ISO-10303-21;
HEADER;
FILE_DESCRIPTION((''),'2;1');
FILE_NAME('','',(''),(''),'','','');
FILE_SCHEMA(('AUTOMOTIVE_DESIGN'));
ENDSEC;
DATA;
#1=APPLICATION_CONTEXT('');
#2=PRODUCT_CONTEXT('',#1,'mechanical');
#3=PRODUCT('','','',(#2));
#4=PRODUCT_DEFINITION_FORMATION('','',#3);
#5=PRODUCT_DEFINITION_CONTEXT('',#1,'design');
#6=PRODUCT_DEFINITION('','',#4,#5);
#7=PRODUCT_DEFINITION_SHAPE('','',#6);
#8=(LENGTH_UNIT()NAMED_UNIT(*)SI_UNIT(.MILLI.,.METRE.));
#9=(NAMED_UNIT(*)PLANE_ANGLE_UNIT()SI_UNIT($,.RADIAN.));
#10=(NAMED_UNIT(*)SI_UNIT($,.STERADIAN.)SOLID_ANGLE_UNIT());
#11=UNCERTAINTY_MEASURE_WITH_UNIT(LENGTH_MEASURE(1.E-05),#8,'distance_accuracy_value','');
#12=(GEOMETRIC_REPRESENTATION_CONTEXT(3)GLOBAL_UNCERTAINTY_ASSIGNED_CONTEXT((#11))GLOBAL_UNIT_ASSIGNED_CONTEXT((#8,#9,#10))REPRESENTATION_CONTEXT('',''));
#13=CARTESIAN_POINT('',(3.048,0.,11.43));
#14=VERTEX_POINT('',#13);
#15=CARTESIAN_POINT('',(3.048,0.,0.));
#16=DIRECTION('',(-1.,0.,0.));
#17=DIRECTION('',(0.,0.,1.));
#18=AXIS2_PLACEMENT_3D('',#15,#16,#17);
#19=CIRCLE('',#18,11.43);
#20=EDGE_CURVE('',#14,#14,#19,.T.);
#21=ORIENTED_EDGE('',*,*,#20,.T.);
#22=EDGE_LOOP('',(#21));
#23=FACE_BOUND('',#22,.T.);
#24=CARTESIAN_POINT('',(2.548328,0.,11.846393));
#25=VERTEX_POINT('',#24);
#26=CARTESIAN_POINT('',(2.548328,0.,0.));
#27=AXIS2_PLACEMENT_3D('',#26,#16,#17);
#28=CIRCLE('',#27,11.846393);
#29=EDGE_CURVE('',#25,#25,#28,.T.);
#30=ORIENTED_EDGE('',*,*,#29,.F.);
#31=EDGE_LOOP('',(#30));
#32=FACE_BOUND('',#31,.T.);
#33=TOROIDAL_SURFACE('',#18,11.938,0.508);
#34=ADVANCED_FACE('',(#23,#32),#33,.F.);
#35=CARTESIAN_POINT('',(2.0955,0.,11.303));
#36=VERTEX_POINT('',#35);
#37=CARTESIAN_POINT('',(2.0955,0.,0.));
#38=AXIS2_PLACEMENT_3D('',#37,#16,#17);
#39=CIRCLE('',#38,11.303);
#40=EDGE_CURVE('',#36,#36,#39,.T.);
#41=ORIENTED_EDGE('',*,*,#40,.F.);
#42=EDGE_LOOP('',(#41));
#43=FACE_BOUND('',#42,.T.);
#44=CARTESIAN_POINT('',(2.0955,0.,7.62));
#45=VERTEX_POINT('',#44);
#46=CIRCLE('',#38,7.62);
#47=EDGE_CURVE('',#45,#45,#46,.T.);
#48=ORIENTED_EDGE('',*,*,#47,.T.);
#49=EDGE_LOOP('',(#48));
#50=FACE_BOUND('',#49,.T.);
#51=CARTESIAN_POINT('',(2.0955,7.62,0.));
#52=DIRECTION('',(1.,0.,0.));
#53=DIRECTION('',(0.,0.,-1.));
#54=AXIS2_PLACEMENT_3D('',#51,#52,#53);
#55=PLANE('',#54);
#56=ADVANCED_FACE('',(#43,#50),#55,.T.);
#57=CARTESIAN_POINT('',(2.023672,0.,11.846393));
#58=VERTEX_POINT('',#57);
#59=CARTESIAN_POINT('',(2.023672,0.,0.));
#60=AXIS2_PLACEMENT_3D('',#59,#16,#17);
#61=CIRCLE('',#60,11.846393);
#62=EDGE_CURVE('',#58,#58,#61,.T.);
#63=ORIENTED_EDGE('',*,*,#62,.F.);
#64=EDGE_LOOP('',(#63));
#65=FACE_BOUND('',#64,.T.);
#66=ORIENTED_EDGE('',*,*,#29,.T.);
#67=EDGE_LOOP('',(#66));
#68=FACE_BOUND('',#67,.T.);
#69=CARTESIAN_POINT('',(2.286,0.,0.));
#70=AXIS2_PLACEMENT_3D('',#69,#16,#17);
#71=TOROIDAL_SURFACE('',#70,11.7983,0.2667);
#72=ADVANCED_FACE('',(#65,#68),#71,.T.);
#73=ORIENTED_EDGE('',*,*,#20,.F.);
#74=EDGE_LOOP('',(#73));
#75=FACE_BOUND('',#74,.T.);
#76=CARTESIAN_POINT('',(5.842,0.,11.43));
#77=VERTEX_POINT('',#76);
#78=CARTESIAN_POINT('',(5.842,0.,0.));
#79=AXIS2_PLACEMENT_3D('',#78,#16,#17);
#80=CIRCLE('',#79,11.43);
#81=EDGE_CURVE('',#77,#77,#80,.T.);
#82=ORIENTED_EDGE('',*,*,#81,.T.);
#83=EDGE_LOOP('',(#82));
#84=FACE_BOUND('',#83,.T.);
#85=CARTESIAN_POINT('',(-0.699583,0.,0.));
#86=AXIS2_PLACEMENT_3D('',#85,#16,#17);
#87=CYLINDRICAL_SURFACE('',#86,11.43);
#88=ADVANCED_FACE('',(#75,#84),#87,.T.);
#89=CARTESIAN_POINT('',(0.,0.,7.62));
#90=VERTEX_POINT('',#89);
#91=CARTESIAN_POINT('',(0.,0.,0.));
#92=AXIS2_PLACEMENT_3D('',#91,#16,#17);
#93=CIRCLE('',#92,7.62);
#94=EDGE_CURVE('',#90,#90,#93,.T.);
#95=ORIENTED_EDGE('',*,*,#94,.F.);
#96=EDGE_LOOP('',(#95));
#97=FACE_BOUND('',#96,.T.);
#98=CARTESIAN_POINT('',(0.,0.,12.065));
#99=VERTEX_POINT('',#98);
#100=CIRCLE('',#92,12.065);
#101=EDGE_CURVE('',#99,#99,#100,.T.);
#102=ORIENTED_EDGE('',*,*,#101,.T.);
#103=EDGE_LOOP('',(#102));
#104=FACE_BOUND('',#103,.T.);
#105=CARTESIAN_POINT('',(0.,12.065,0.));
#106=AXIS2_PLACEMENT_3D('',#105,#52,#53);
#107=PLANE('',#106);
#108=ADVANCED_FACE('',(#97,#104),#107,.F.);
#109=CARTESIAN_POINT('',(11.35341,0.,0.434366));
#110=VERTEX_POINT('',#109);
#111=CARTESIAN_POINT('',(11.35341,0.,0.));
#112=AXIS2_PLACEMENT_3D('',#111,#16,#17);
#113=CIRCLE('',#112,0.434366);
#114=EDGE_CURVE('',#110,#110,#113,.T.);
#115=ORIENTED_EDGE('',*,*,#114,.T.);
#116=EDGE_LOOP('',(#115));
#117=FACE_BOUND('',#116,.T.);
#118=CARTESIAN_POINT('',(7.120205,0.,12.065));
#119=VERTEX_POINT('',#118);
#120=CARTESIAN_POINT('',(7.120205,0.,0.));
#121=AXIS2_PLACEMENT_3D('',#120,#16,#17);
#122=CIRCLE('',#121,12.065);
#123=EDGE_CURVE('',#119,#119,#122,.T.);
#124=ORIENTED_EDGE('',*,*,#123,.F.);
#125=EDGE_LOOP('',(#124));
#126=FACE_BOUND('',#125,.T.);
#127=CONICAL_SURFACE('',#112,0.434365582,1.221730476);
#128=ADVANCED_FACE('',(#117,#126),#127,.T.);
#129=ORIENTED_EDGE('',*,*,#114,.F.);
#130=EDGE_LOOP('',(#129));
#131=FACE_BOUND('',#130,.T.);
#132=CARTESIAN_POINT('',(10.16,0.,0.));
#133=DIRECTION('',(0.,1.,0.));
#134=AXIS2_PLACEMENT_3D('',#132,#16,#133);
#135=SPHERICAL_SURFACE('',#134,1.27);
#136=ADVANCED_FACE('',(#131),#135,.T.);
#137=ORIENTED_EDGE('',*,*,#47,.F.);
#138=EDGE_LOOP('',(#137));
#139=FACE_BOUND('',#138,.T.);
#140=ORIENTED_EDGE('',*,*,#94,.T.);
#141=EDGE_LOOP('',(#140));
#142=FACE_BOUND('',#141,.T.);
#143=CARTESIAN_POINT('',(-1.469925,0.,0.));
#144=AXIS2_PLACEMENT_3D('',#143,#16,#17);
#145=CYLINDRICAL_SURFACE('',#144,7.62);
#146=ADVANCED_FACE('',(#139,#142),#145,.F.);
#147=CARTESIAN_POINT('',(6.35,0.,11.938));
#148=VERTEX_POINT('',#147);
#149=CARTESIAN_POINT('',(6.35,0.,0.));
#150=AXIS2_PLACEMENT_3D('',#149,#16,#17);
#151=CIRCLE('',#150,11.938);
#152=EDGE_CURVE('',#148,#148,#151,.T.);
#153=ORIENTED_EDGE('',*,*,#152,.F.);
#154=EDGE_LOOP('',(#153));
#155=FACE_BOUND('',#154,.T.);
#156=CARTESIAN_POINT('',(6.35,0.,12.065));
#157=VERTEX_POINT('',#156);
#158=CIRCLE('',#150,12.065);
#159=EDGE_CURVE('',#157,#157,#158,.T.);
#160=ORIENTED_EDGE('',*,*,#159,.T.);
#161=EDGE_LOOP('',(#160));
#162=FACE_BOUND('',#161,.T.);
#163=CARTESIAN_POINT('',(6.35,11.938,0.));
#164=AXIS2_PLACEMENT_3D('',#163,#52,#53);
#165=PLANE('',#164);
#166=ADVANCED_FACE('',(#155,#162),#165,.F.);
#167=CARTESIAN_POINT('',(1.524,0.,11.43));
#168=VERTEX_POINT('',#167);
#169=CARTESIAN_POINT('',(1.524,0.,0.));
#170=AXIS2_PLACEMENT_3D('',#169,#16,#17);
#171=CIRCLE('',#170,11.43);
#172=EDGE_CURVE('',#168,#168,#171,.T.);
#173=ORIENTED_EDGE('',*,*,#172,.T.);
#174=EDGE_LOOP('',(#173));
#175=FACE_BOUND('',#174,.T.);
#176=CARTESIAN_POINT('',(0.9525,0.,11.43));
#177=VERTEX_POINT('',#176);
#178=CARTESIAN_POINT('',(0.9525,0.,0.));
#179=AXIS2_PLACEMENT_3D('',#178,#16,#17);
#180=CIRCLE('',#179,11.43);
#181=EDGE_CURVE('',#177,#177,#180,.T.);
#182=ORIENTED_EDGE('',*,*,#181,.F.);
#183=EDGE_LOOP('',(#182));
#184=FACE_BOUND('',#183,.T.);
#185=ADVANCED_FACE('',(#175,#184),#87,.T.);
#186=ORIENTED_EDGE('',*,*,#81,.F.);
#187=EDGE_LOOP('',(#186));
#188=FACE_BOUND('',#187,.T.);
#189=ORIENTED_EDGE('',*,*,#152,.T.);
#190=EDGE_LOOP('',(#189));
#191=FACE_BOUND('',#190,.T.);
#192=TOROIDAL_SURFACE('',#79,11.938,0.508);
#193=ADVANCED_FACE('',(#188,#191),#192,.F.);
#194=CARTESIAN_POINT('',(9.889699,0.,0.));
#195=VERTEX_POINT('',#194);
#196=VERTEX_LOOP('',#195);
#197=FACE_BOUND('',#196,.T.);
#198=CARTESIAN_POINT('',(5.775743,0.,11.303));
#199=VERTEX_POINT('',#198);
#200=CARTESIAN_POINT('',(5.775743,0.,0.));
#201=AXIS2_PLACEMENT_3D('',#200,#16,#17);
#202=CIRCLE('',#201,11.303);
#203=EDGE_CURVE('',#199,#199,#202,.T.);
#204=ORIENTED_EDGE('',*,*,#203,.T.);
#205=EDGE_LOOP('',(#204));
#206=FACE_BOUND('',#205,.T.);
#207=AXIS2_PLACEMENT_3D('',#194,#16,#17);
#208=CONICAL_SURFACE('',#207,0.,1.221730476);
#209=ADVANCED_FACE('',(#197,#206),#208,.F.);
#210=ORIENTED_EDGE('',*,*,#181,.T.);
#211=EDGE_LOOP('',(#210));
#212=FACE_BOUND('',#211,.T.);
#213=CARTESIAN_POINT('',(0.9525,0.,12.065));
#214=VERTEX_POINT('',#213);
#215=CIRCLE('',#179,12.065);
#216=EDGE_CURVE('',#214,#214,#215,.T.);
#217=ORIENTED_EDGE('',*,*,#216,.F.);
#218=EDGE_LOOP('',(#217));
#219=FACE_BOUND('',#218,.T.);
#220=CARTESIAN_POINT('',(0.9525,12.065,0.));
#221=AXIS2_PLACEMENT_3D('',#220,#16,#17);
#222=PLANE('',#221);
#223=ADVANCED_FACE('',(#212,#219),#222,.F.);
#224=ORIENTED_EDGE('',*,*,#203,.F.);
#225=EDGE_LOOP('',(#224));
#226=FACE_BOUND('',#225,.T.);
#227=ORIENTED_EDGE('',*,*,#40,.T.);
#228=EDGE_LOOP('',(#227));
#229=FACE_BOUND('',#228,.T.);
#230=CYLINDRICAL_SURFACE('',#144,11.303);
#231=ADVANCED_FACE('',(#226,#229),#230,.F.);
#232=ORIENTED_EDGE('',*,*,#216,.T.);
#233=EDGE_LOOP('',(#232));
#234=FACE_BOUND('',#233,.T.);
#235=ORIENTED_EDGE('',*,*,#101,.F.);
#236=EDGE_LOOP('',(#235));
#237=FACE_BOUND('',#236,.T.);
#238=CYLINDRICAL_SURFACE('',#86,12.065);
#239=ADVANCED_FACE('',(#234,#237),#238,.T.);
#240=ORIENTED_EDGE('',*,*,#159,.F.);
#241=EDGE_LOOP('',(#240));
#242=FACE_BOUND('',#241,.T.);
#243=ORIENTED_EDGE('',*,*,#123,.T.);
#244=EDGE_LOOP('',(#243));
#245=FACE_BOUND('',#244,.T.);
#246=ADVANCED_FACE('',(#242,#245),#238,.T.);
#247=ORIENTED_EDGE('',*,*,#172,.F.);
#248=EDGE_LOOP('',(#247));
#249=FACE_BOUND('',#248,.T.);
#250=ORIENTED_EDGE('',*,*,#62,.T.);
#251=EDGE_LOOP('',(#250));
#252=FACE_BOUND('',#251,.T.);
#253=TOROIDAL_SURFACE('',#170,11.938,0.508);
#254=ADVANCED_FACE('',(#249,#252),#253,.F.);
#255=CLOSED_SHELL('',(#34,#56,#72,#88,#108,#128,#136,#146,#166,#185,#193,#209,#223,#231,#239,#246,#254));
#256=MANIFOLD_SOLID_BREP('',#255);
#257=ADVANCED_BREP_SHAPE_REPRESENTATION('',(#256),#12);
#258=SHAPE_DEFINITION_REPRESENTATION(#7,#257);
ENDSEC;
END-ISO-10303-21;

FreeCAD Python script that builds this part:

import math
import FreeCAD as App
import Part
import Sketcher
from FreeCAD import Vector
Q = App.Units.Quantity

doc = App.newDocument("Part")
params = doc.addObject("Spreadsheet::Sheet", "Params")
for row, (alias, value) in enumerate([
    ("sketch1_radius", "0.05 in"),
    ("sketch1_radius2", "0.02 in"),
    ("sketch1_width", "0.45 in"),
    ("sketch1_width2", "0.11 in"),
    ("sketch1_height", "0.475 in"),
    ("revolution_angle", "360 deg"),
    ("sketch2_height", "0.3 in"),
    ("sketch2_height2", "0.145 in"),
    ("groove_angle", "360 deg"),
], start=1):
    params.set(f"A{row}", alias)
    params.set(f"B{row}", "=" + value)
    params.setAlias(f"B{row}", alias)

body = doc.addObject("PartDesign::Body", "Body")

# Sketch on XY plane
sketch1 = body.newObject("Sketcher::SketchObject", "Sketch")
sketch1.AttachmentSupport = (doc.getObject("XY_Plane"), [""])
sketch1.MapMode = "FlatFace"
sketch1.addGeometry([
    Part.LineSegment(Vector(0.95, 12.06, 0), Vector(0, 12.06, 0)),  # 0
    Part.LineSegment(Vector(0, 12.06, 0), Vector(0, 0, 0)),  # 1
    Part.LineSegment(Vector(0, 0, 0), Vector(11.43, 0, 0)),  # 2
    Part.ArcOfCircle(Part.Circle(Vector(10.16, 0, 0), Vector(0, 0, 1), 1.27), math.radians(0), math.radians(20)),  # 3
    Part.LineSegment(Vector(11.35, 0.43, 0), Vector(7.12, 12.06, 0)),  # 4
    Part.LineSegment(Vector(7.12, 12.06, 0), Vector(6.35, 12.06, 0)),  # 5
    Part.LineSegment(Vector(6.35, 12.06, 0), Vector(6.35, 11.94, 0)),  # 6
    Part.ArcOfCircle(Part.Circle(Vector(5.84, 11.94, 0), Vector(0, 0, 1), 0.51), math.radians(-90), math.radians(0)),  # 7
    Part.LineSegment(Vector(5.84, 11.43, 0), Vector(3.05, 11.43, 0)),  # 8
    Part.ArcOfCircle(Part.Circle(Vector(3.05, 11.94, 0), Vector(0, 0, 1), 0.51), math.radians(-170), math.radians(-90)),  # 9
    Part.ArcOfCircle(Part.Circle(Vector(2.29, 11.8, 0), Vector(0, 0, 1), 0.27), math.radians(10), math.radians(170)),  # 10
    Part.ArcOfCircle(Part.Circle(Vector(1.52, 11.94, 0), Vector(0, 0, 1), 0.51), math.radians(-90), math.radians(-10)),  # 11
    Part.LineSegment(Vector(1.52, 11.43, 0), Vector(0.95, 11.43, 0)),  # 12
    Part.LineSegment(Vector(0.95, 11.43, 0), Vector(0.95, 12.06, 0)),  # 13
], False)
sketch1.addConstraint([
    Sketcher.Constraint("Coincident", 0, 2, 1, 1),
    Sketcher.Constraint("Coincident", 1, 2, 2, 1),
    Sketcher.Constraint("Coincident", 2, 2, 3, 1),
    Sketcher.Constraint("Tangent", 3, 2, 4, 1),
    Sketcher.Constraint("Coincident", 4, 2, 5, 1),
    Sketcher.Constraint("Coincident", 5, 2, 6, 1),
    Sketcher.Constraint("Tangent", 6, 2, 7, 2),
    Sketcher.Constraint("Tangent", 7, 1, 8, 1),
    Sketcher.Constraint("Tangent", 8, 2, 9, 2),
    Sketcher.Constraint("Tangent", 9, 1, 10, 1),
    Sketcher.Constraint("Tangent", 10, 2, 11, 2),
    Sketcher.Constraint("Tangent", 11, 1, 12, 1),
    Sketcher.Constraint("Coincident", 12, 2, 13, 1),
    Sketcher.Constraint("Coincident", 13, 2, 0, 1),
    Sketcher.Constraint("Horizontal", 0),
    Sketcher.Constraint("Vertical", 1),
    Sketcher.Constraint("Horizontal", 2),
    Sketcher.Constraint("Horizontal", 5),
    Sketcher.Constraint("Vertical", 6),
    Sketcher.Constraint("Horizontal", 8),
    Sketcher.Constraint("Horizontal", 12),
    Sketcher.Constraint("Vertical", 13),
    Sketcher.Constraint("Coincident", 1, 2, -1, 1),
    Sketcher.Constraint("Equal", 7, 9),
    Sketcher.Constraint("Equal", 9, 11),
    Sketcher.Constraint("PointOnObject", 3, 3, -1),
    Sketcher.Constraint("Horizontal", 9, 3, 11, 3),
    Sketcher.Constraint("Horizontal", 0, 2, 4, 2),
    Sketcher.Constraint("Radius", 3, Q("0.05 in")),
    Sketcher.Constraint("Radius", 7, Q("0.02 in")),
    Sketcher.Constraint("Angle", 4, Q("110 deg")),
    Sketcher.Constraint("DistanceX", 2, 1, 2, 2, Q("0.45 in")),
    Sketcher.Constraint("DistanceX", 8, 2, 8, 1, Q("0.11 in")),
    Sketcher.Constraint("Radius", 10, Q("0.0105 in")),
    Sketcher.Constraint("DistanceY", 1, 2, 1, 1, Q("0.475 in")),
    Sketcher.Constraint("DistanceY", 6, 2, 6, 1, Q("0.005 in")),
    Sketcher.Constraint("DistanceX", -1, 1, 7, 3, Q("0.23 in")),
    Sketcher.Constraint("DistanceX", -1, 1, 10, 3, Q("0.09 in")),
    Sketcher.Constraint("DistanceX", 0, 2, 0, 1, Q("0.0375 in")),
])
sketch1.setExpression("Constraints[28]", "Params.sketch1_radius")
sketch1.setExpression("Constraints[29]", "Params.sketch1_radius2")
sketch1.setExpression("Constraints[31]", "Params.sketch1_width")
sketch1.setExpression("Constraints[32]", "Params.sketch1_width2")
sketch1.setExpression("Constraints[34]", "Params.sketch1_height")
revolution = body.newObject("PartDesign::Revolution", "Revolution")
revolution.Profile = sketch1
revolution.ReferenceAxis = (sketch1, ["H_Axis"])
revolution.setExpression("Angle", "Params.revolution_angle")

# Sketch on XY plane
sketch2 = body.newObject("Sketcher::SketchObject", "Sketch001")
sketch2.AttachmentSupport = (doc.getObject("XY_Plane"), [""])
sketch2.MapMode = "FlatFace"
sketch2.addGeometry([
    Part.LineSegment(Vector(0, 7.6, 0), Vector(0, 0, 0)),  # 0
    Part.LineSegment(Vector(0, 0, 0), Vector(9.9, 0, 0)),  # 1
    Part.LineSegment(Vector(9.9, 0, 0), Vector(5.8, 11.3, 0)),  # 2
    Part.LineSegment(Vector(5.8, 11.3, 0), Vector(2.1, 11.3, 0)),  # 3
    Part.LineSegment(Vector(2.1, 11.3, 0), Vector(2.1, 7.6, 0)),  # 4
    Part.LineSegment(Vector(2.1, 7.6, 0), Vector(0, 7.6, 0)),  # 5
], False)
sketch2.addConstraint([
    Sketcher.Constraint("Coincident", 0, 2, 1, 1),
    Sketcher.Constraint("Coincident", 1, 2, 2, 1),
    Sketcher.Constraint("Coincident", 2, 2, 3, 1),
    Sketcher.Constraint("Coincident", 3, 2, 4, 1),
    Sketcher.Constraint("Coincident", 4, 2, 5, 1),
    Sketcher.Constraint("Coincident", 5, 2, 0, 1),
    Sketcher.Constraint("Vertical", 0),
    Sketcher.Constraint("Horizontal", 1),
    Sketcher.Constraint("Horizontal", 3),
    Sketcher.Constraint("Vertical", 4),
    Sketcher.Constraint("Horizontal", 5),
    Sketcher.Constraint("Coincident", 0, 2, -1, 1),
    Sketcher.Constraint("DistanceY", 0, 2, 0, 1, Q("0.3 in")),
    Sketcher.Constraint("Angle", 2, Q("110 deg")),
    Sketcher.Constraint("DistanceY", 4, 2, 4, 1, Q("0.145 in")),
    Sketcher.Constraint("DistanceX", 5, 2, 5, 1, Q("0.0825 in")),
    Sketcher.Constraint("DistanceX", 1, 1, 1, 2, 9.889699),
])
sketch2.setExpression("Constraints[12]", "Params.sketch2_height")
sketch2.setExpression("Constraints[14]", "Params.sketch2_height2")
groove = body.newObject("PartDesign::Groove", "Groove")
groove.Profile = sketch2
groove.ReferenceAxis = (sketch2, ["H_Axis"])
groove.setExpression("Angle", "Params.groove_angle")

doc.recompute()
